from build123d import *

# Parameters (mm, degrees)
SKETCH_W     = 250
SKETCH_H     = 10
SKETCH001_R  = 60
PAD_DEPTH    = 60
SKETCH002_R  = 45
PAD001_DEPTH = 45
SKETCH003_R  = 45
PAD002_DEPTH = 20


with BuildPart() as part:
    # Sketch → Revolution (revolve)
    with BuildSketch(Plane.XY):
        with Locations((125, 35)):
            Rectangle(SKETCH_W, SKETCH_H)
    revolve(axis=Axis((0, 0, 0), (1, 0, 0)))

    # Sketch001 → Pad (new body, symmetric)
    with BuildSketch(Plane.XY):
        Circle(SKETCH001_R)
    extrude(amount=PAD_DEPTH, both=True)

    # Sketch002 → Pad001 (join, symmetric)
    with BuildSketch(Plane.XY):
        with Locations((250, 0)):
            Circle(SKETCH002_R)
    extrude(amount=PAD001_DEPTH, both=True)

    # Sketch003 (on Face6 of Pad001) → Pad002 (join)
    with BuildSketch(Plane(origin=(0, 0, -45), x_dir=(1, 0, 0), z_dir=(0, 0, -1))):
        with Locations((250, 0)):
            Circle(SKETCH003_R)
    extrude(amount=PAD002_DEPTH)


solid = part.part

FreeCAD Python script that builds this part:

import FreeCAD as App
import Part
import Sketcher
Q = App.Units.Quantity


def add_polygon(sketch, points):
    """Adds a closed chain of lines whose ends are joined by coincident constraints."""
    first, n = sketch.GeometryCount, len(points)
    for a, b in zip(points, points[1:] + points[:1]):
        sketch.addGeometry(Part.LineSegment(App.Vector(*a, 0), App.Vector(*b, 0)), False)
    for i in range(n):
        sketch.addConstraint(Sketcher.Constraint("Coincident", first + i, 2, first + (i + 1) % n, 1))

doc = App.newDocument("Part")
params = doc.addObject("Spreadsheet::Sheet", "Params")
for row, (alias, value) in enumerate([
    ("sketch1_width", "250 mm"),
    ("sketch1_height", "10 mm"),
    ("revolution_angle", "360 deg"),
    ("sketch2_diameter", "120 mm"),
    ("pad1_length", "120 mm"),
    ("sketch3_diameter", "90 mm"),
    ("pad2_length", "90 mm"),
    ("sketch4_diameter", "90 mm"),
    ("pad3_length", "20 mm"),
], start=1):
    params.set(f"A{row}", alias)
    params.set(f"B{row}", "=" + value)
    params.setAlias(f"B{row}", alias)

body = doc.addObject("PartDesign::Body", "Body")

# Sketch on XY plane
sketch1 = doc.addObject("Sketcher::SketchObject", "Sketch")
body.addObject(sketch1)
sketch1.AttachmentSupport = (doc.XY_Plane, [""])
sketch1.MapMode = "FlatFace"
add_polygon(sketch1, [(0, 40), (0, 30), (250, 30), (250, 40)])  # lines 0-3
sketch1.addConstraint([
    Sketcher.Constraint("Vertical", 0),
    Sketcher.Constraint("Horizontal", 1),
    Sketcher.Constraint("Vertical", 2),
    Sketcher.Constraint("Horizontal", 3),
    Sketcher.Constraint("PointOnObject", 0, 2, -2),
    Sketcher.Constraint("DistanceX", 1, 1, 1, 2, Q("250 mm")),
    Sketcher.Constraint("DistanceY", 0, 2, 0, 1, Q("10 mm")),
    Sketcher.Constraint("DistanceY", -1, 1, 0, 2, Q("30 mm")),
])
sketch1.setExpression("Constraints[9]", "Params.sketch1_width")
sketch1.setExpression("Constraints[10]", "Params.sketch1_height")
revolution = doc.addObject("PartDesign::Revolution", "Revolution")
body.addObject(revolution)
revolution.Profile = sketch1
revolution.ReferenceAxis = (sketch1, ["H_Axis"])
revolution.setExpression("Angle", "Params.revolution_angle")

# Sketch on XY plane
sketch2 = doc.addObject("Sketcher::SketchObject", "Sketch001")
body.addObject(sketch2)
sketch2.AttachmentSupport = (doc.XY_Plane, [""])
sketch2.MapMode = "FlatFace"
sketch2.addGeometry(Part.Circle(App.Vector(0, 0, 0), App.Vector(0, 0, 1), 60), False)
sketch2.addConstraint([
    Sketcher.Constraint("Coincident", 0, 3, -1, 1),
    Sketcher.Constraint("Diameter", 0, Q("120 mm")),
])
sketch2.setExpression("Constraints[1]", "Params.sketch2_diameter")
pad1 = doc.addObject("PartDesign::Pad", "Pad")
body.addObject(pad1)
pad1.Profile = sketch2
pad1.setExpression("Length", "Params.pad1_length")
pad1.Midplane = True

# Sketch on XY plane
sketch3 = doc.addObject("Sketcher::SketchObject", "Sketch002")
body.addObject(sketch3)
sketch3.AttachmentSupport = (doc.XY_Plane, [""])
sketch3.MapMode = "FlatFace"
sketch3.addGeometry(Part.Circle(App.Vector(250, 0, 0), App.Vector(0, 0, 1), 45), False)
sketch3.addConstraint([
    Sketcher.Constraint("PointOnObject", 0, 3, -1),
    Sketcher.Constraint("Diameter", 0, Q("90 mm")),
    Sketcher.Constraint("DistanceX", -1, 1, 0, 3, Q("250 mm")),
])
sketch3.setExpression("Constraints[1]", "Params.sketch3_diameter")
pad2 = doc.addObject("PartDesign::Pad", "Pad001")
body.addObject(pad2)
pad2.Profile = sketch3
pad2.setExpression("Length", "Params.pad2_length")
pad2.Midplane = True

# Sketch on XY plane
sketch4 = doc.addObject("Sketcher::SketchObject", "Sketch003")
body.addObject(sketch4)
sketch4.AttachmentSupport = (doc.XY_Plane, [""])
sketch4.MapMode = "FlatFace"
sketch4.AttachmentOffset = App.Placement(App.Vector(0, 0, -45), App.Rotation())
sketch4.addGeometry(Part.Circle(App.Vector(250, 0, 0), App.Vector(0, 0, 1), 45), False)
sketch4.addConstraint([
    Sketcher.Constraint("PointOnObject", 0, 3, -1),
    Sketcher.Constraint("Diameter", 0, Q("90 mm")),
    Sketcher.Constraint("DistanceX", -1, 1, 0, 3, Q("250 mm")),
])
sketch4.setExpression("Constraints[1]", "Params.sketch4_diameter")
pad3 = doc.addObject("PartDesign::Pad", "Pad002")
body.addObject(pad3)
pad3.Profile = sketch4
pad3.setExpression("Length", "Params.pad3_length")
pad3.Reversed = True

doc.recompute()
